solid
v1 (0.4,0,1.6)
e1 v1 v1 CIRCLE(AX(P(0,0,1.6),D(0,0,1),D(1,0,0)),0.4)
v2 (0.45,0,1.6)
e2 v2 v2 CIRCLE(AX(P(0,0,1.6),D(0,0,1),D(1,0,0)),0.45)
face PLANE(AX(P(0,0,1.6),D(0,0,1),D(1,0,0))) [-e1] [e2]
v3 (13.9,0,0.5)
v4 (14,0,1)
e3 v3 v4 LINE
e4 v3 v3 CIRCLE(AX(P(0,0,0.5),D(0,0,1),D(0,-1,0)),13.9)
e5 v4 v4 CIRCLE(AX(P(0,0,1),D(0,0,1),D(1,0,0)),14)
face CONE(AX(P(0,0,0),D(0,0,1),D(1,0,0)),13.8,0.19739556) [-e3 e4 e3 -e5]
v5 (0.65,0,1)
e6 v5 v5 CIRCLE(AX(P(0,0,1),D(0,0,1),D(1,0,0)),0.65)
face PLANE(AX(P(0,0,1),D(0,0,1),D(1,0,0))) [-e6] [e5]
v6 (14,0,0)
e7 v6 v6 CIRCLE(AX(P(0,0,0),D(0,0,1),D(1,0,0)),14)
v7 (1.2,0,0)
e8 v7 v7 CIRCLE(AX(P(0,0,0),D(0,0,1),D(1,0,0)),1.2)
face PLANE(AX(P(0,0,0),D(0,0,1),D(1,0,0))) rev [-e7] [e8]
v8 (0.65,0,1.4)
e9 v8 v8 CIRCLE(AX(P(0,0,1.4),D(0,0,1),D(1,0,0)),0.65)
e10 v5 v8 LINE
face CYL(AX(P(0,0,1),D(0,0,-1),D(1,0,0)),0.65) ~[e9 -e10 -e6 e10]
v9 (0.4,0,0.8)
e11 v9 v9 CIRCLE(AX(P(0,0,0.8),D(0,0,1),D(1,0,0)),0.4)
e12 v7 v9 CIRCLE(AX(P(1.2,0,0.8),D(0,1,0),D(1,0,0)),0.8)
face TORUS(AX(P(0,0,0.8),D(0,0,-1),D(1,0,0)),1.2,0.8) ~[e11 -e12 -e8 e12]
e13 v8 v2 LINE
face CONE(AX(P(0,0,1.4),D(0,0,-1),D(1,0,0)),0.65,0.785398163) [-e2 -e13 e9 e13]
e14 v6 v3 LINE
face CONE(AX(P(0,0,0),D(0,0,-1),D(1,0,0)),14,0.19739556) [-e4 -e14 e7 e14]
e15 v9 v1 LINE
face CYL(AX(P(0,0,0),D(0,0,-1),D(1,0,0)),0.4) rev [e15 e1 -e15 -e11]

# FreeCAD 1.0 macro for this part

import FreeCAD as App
import Part
import Sketcher
Q = App.Units.Quantity


def edges_at(feature, points):
    """Names of the edges that pass closest to the given points."""
    edges = feature.Shape.Edges
    near = lambda p: min(range(len(edges)), key=lambda i: edges[i].distToShape(Part.Vertex(*p))[0])
    return sorted({f"Edge{near(p) + 1}" for p in points})

doc = App.newDocument("Part")
body = doc.addObject("PartDesign::Body", "Body")

# Sketch on XY plane
sketch1 = body.newObject("Sketcher::SketchObject", "Sketch")
sketch1.AttachmentSupport = (doc.getObject("XY_Plane"), [""])
sketch1.MapMode = "FlatFace"
sketch1.addGeometry(Part.Circle(App.Vector(0, 0, 0), App.Vector(0, 0, 1), 0.4), False)
sketch1.addConstraint([
    Sketcher.Constraint("Coincident", 0, 3, -1, 1),
    Sketcher.Constraint("Diameter", 0, Q("0.8 mm")),
])
pad1 = body.newObject("PartDesign::Pad", "Pad")
pad1.Profile = sketch1
pad1.Length = 1
body2 = doc.addObject("PartDesign::Body", "Body001")

# Sketch on XZ plane
sketch2 = body2.newObject("Sketcher::SketchObject", "Sketch001")
sketch2.AttachmentSupport = (doc.getObject("XZ_Plane001"), [""])
sketch2.MapMode = "FlatFace"
sketch2.addGeometry([
    Part.LineSegment(App.Vector(0, 0, 0), App.Vector(14, 0, 0)),
    Part.LineSegment(App.Vector(14, 0, 0), App.Vector(13.8, 1, 0)),
    Part.LineSegment(App.Vector(13.8, 1, 0), App.Vector(0, 1, 0)),
    Part.LineSegment(App.Vector(0, 1, 0), App.Vector(0, 0, 0)),
], False)
sketch2.addConstraint([
    Sketcher.Constraint("Coincident", 0, 2, 1, 1),
    Sketcher.Constraint("Coincident", 1, 2, 2, 1),
    Sketcher.Constraint("Coincident", 2, 2, 3, 1),
    Sketcher.Constraint("Coincident", 3, 2, 0, 1),
    Sketcher.Constraint("Horizontal", 0),
    Sketcher.Constraint("Horizontal", 2),
    Sketcher.Constraint("Vertical", 3),
    Sketcher.Constraint("Coincident", 3, 2, -1, 1),
    Sketcher.Constraint("DistanceX", 0, 1, 0, 2, Q("14 mm")),
    Sketcher.Constraint("DistanceY", 3, 2, 3, 1, Q("1 mm")),
    Sketcher.Constraint("DistanceX", 2, 2, 2, 1, Q("13.8 mm")),
])
revolution = body2.newObject("PartDesign::Revolution", "Revolution")
revolution.Profile = sketch2
revolution.ReferenceAxis = (sketch2, ["V_Axis"])
revolution.Angle = 360
body3 = doc.addObject("PartDesign::Body", "Body002")

# Sketch on XZ plane
sketch3 = body3.newObject("Sketcher::SketchObject", "Sketch002")
sketch3.AttachmentSupport = (doc.getObject("XZ_Plane002"), [""])
sketch3.MapMode = "FlatFace"
sketch3.addGeometry([
    Part.LineSegment(App.Vector(0, 0, 0), App.Vector(13.8, 0, 0)),
    Part.LineSegment(App.Vector(13.8, 0, 0), App.Vector(14, 1, 0)),
    Part.LineSegment(App.Vector(14, 1, 0), App.Vector(0, 1, 0)),
    Part.LineSegment(App.Vector(0, 1, 0), App.Vector(0, 0, 0)),
], False)
sketch3.addConstraint([
    Sketcher.Constraint("Coincident", 0, 2, 1, 1),
    Sketcher.Constraint("Coincident", 1, 2, 2, 1),
    Sketcher.Constraint("Coincident", 2, 2, 3, 1),
    Sketcher.Constraint("Coincident", 3, 2, 0, 1),
    Sketcher.Constraint("Horizontal", 0),
    Sketcher.Constraint("Horizontal", 2),
    Sketcher.Constraint("Vertical", 3),
    Sketcher.Constraint("Coincident", 3, 2, -1, 1),
    Sketcher.Constraint("DistanceX", 2, 2, 2, 1, Q("14 mm")),
    Sketcher.Constraint("DistanceY", 3, 2, 3, 1, Q("1 mm")),
    Sketcher.Constraint("DistanceX", 0, 1, 0, 2, Q("13.8 mm")),
])
revolution2 = body3.newObject("PartDesign::Revolution", "Revolution001")
revolution2.Profile = sketch3
revolution2.ReferenceAxis = (sketch3, ["V_Axis"])
revolution2.Angle = 360
doc.recompute()

boolean = body3.newObject("PartDesign::Boolean", "Boolean")
boolean.Type = "Fuse"
boolean.addObjects([body2])
doc.recompute()

boolean2 = body3.newObject("PartDesign::Boolean", "Boolean001")
boolean2.Type = "Cut"
boolean2.addObjects([body])
doc.recompute()

fillet = body3.newObject("PartDesign::Fillet", "Fillet")
fillet.Base = (boolean2, edges_at(boolean2, [(-0.4, 0, 0)]))
fillet.Radius = 0.8
body4 = doc.addObject("PartDesign::Body", "Body003")

# Sketch on XY plane
sketch4 = body4.newObject("Sketcher::SketchObject", "Sketch003")
sketch4.AttachmentSupport = (doc.getObject("XY_Plane003"), [""])
sketch4.MapMode = "FlatFace"
sketch4.AttachmentOffset = App.Placement(App.Vector(0, 0, 1), App.Rotation())
sketch4.addGeometry(Part.Circle(App.Vector(0, 0, 0), App.Vector(0, 0, 1), 0.4), False)
sketch4.addConstraint([
    Sketcher.Constraint("Coincident", 0, 3, -1, 1),
    Sketcher.Constraint("Diameter", 0, Q("0.8 mm")),
])
pad2 = body4.newObject("PartDesign::Pad", "Pad001")
pad2.Profile = sketch4
pad2.Length = 0.6
body5 = doc.addObject("PartDesign::Body", "Body004")

# Sketch on XY plane
sketch5 = body5.newObject("Sketcher::SketchObject", "Sketch004")
sketch5.AttachmentSupport = (doc.getObject("XY_Plane004"), [""])
sketch5.MapMode = "FlatFace"
sketch5.AttachmentOffset = App.Placement(App.Vector(0, 0, 1), App.Rotation())
sketch5.addGeometry(Part.Circle(App.Vector(0, 0, 0), App.Vector(0, 0, 1), 0.7), False)
sketch5.addConstraint([
    Sketcher.Constraint("Coincident", 0, 3, -1, 1),
    Sketcher.Constraint("Diameter", 0, Q("1.3 mm")),
])
pad3 = body5.newObject("PartDesign::Pad", "Pad002")
pad3.Profile = sketch5
pad3.Length = 0.6
doc.recompute()

boolean3 = body5.newObject("PartDesign::Boolean", "Boolean002")
boolean3.Type = "Cut"
boolean3.addObjects([body4])
doc.recompute()

chamfer = body5.newObject("PartDesign::Chamfer", "Chamfer")
chamfer.Base = (boolean3, edges_at(boolean3, [(-0.65, 0, 1.6)]))
chamfer.Size = 0.2
doc.recompute()

boolean4 = body5.newObject("PartDesign::Boolean", "Boolean003")
boolean4.Type = "Fuse"
boolean4.addObjects([body3])

doc.recompute()
